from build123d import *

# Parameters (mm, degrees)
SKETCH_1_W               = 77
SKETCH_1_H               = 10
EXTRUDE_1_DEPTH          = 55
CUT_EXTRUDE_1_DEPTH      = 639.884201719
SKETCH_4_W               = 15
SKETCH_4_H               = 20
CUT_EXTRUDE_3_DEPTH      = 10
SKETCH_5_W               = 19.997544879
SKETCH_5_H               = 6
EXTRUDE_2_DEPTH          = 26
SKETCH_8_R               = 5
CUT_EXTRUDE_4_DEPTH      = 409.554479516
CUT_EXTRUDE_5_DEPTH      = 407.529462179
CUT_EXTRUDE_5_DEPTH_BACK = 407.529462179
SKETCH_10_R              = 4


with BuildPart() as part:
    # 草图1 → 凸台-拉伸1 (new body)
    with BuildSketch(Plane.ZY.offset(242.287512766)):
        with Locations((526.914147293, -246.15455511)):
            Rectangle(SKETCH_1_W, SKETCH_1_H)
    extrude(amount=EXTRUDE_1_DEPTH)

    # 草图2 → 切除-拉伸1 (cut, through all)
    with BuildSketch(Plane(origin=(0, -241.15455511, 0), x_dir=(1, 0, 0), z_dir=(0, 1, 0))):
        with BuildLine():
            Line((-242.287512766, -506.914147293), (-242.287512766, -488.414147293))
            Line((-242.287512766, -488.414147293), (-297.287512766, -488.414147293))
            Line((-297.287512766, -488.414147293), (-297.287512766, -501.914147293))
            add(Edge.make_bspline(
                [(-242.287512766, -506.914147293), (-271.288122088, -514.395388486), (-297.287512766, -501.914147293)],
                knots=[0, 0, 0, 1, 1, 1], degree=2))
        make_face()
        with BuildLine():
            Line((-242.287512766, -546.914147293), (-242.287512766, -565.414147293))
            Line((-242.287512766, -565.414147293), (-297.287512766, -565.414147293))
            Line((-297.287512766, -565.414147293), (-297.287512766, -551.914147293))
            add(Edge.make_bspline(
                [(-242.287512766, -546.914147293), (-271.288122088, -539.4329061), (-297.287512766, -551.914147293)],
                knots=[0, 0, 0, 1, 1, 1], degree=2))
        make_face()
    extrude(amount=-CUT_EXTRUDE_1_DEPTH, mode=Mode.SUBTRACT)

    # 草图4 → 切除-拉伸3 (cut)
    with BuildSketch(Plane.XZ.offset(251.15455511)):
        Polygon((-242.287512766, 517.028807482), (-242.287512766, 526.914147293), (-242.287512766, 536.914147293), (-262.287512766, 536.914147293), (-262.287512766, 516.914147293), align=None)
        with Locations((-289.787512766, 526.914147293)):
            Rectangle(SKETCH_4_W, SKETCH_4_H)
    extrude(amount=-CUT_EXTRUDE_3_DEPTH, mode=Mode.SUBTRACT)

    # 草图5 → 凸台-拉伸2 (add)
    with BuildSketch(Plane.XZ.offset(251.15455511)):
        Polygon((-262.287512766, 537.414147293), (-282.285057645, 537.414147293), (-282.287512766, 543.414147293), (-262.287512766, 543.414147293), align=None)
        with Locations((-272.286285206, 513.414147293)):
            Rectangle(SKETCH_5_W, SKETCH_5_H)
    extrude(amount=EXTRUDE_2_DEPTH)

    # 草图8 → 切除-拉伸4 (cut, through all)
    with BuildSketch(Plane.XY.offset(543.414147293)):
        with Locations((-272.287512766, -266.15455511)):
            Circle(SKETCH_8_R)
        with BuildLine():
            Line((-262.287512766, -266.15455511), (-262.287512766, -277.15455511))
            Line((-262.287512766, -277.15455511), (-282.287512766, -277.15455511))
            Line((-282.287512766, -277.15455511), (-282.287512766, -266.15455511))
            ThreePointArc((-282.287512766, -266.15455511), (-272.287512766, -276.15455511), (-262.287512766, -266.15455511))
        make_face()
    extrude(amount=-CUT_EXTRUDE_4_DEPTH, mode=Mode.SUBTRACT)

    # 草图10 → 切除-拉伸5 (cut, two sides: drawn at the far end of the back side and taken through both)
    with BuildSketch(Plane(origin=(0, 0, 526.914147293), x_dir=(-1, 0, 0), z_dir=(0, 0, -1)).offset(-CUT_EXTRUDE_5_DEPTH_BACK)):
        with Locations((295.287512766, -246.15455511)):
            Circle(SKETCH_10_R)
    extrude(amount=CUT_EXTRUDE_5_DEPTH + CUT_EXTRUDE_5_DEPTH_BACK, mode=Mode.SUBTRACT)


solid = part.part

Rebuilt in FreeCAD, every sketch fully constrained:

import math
import FreeCAD as App
import Part
import Sketcher

doc = App.newDocument("Part")
body = doc.addObject("PartDesign::Body", "Body")

# Sketch on YZ plane
sketch1 = body.newObject("Sketcher::SketchObject", "Sketch")
sketch1.AttachmentSupport = (doc.getObject("YZ_Plane"), [""])
sketch1.MapMode = "FlatFace"
sketch1.AttachmentOffset = App.Placement(App.Vector(0, 0, -242.287513), App.Rotation())
sketch1.addGeometry([
    Part.LineSegment(App.Vector(-241, 488, 0), App.Vector(-251, 488, 0)),
    Part.LineSegment(App.Vector(-251, 488, 0), App.Vector(-251, 565, 0)),
    Part.LineSegment(App.Vector(-251, 565, 0), App.Vector(-241, 565, 0)),
    Part.LineSegment(App.Vector(-241, 565, 0), App.Vector(-241, 488, 0)),
], False)
sketch1.addConstraint([
    Sketcher.Constraint("Coincident", 0, 2, 1, 1),
    Sketcher.Constraint("Coincident", 1, 2, 2, 1),
    Sketcher.Constraint("Coincident", 2, 2, 3, 1),
    Sketcher.Constraint("Coincident", 3, 2, 0, 1),
    Sketcher.Constraint("Horizontal", 0),
    Sketcher.Constraint("Vertical", 1),
    Sketcher.Constraint("Horizontal", 2),
    Sketcher.Constraint("Vertical", 3),
    Sketcher.Constraint("DistanceX", 0, 2, 0, 1, 10.0),
    Sketcher.Constraint("DistanceY", 1, 1, 1, 2, 77.0),
    Sketcher.Constraint("DistanceX", 0, 2, -1, 1, 251.154555),
    Sketcher.Constraint("DistanceY", -1, 1, 0, 2, 488.414147),
])
pad1 = body.newObject("PartDesign::Pad", "Pad")
pad1.Profile = sketch1
pad1.Length = 55
pad1.Reversed = True

# Sketch on XZ plane
sketch2 = body.newObject("Sketcher::SketchObject", "Sketch001")
sketch2.AttachmentSupport = (doc.getObject("XZ_Plane"), [""])
sketch2.MapMode = "FlatFace"
sketch2.AttachmentOffset = App.Placement(App.Vector(0, 0, 241.154555), App.Rotation())
sketch2.addGeometry([
    Part.LineSegment(App.Vector(-242.287513, 506.914147, 0), App.Vector(-242.287513, 488.414147, 0)),  # 0
    Part.LineSegment(App.Vector(-242.287513, 488.414147, 0), App.Vector(-297.287513, 488.414147, 0)),  # 1
    Part.LineSegment(App.Vector(-297.287513, 488.414147, 0), App.Vector(-297.287513, 501.914147, 0)),  # 2
    Part.BSplineCurve([App.Vector(-242.287513, 506.914147, 0), App.Vector(-271.288122, 514.395388, 0), App.Vector(-297.287513, 501.914147, 0)], [3, 3], [0, 1], False, 2, [1, 1, 1], False),  # 3
    Part.LineSegment(App.Vector(-242.287513, 565.414147, 0), App.Vector(-242.287513, 546.914147, 0)),  # 4
    Part.BSplineCurve([App.Vector(-242.287513, 546.914147, 0), App.Vector(-271.288122, 539.432906, 0), App.Vector(-297.287513, 551.914147, 0)], [3, 3], [0, 1], False, 2, [1, 1, 1], False),  # 5
    Part.LineSegment(App.Vector(-297.287513, 551.914147, 0), App.Vector(-297.287513, 565.414147, 0)),  # 6
    Part.LineSegment(App.Vector(-297.287513, 565.414147, 0), App.Vector(-242.287513, 565.414147, 0)),  # 7
], False)
sketch2.addConstraint([
    Sketcher.Constraint("Block", 3),
    Sketcher.Constraint("Block", 5),
    Sketcher.Constraint("Coincident", 0, 2, 1, 1),
    Sketcher.Constraint("Coincident", 1, 2, 2, 1),
    Sketcher.Constraint("Coincident", 2, 2, 3, 2),
    Sketcher.Constraint("Coincident", 3, 1, 0, 1),
    Sketcher.Constraint("Coincident", 4, 2, 5, 1),
    Sketcher.Constraint("Coincident", 5, 2, 6, 1),
    Sketcher.Constraint("Coincident", 6, 2, 7, 1),
    Sketcher.Constraint("Coincident", 7, 2, 4, 1),
    Sketcher.Constraint("Vertical", 0),
    Sketcher.Constraint("Horizontal", 1),
    Sketcher.Constraint("Vertical", 2),
    Sketcher.Constraint("Vertical", 4),
    Sketcher.Constraint("Vertical", 6),
    Sketcher.Constraint("Horizontal", 7),
    Sketcher.Constraint("Equal", 0, 4),
    Sketcher.Constraint("DistanceY", 0, 2, 0, 1, 18.5),
])
pocket1 = body.newObject("PartDesign::Pocket", "Pocket")
pocket1.Profile = sketch2
pocket1.Type = "ThroughAll"
pocket1.Reversed = True

# Sketch on XZ plane
sketch3 = body.newObject("Sketcher::SketchObject", "Sketch002")
sketch3.AttachmentSupport = (doc.getObject("XZ_Plane"), [""])
sketch3.MapMode = "FlatFace"
sketch3.AttachmentOffset = App.Placement(App.Vector(0, 0, 251.154555), App.Rotation())
sketch3.addGeometry([
    Part.LineSegment(App.Vector(-242, 517, 0), App.Vector(-242, 537, 0)),  # 0
    Part.LineSegment(App.Vector(-242, 537, 0), App.Vector(-262, 537, 0)),  # 1
    Part.LineSegment(App.Vector(-262, 537, 0), App.Vector(-262, 517, 0)),  # 2
    Part.LineSegment(App.Vector(-262, 517, 0), App.Vector(-242, 517, 0)),  # 3
    Part.LineSegment(App.Vector(-297, 537, 0), App.Vector(-297, 517, 0)),  # 4
    Part.LineSegment(App.Vector(-297, 517, 0), App.Vector(-282, 517, 0)),  # 5
    Part.LineSegment(App.Vector(-282, 517, 0), App.Vector(-282, 537, 0)),  # 6
    Part.LineSegment(App.Vector(-282, 537, 0), App.Vector(-297, 537, 0)),  # 7
], False)
sketch3.addConstraint([
    Sketcher.Constraint("Coincident", 0, 2, 1, 1),
    Sketcher.Constraint("Coincident", 1, 2, 2, 1),
    Sketcher.Constraint("Coincident", 2, 2, 3, 1),
    Sketcher.Constraint("Coincident", 3, 2, 0, 1),
    Sketcher.Constraint("Coincident", 4, 2, 5, 1),
    Sketcher.Constraint("Coincident", 5, 2, 6, 1),
    Sketcher.Constraint("Coincident", 6, 2, 7, 1),
    Sketcher.Constraint("Coincident", 7, 2, 4, 1),
    Sketcher.Constraint("Vertical", 0),
    Sketcher.Constraint("Horizontal", 1),
    Sketcher.Constraint("Vertical", 2),
    Sketcher.Constraint("Vertical", 4),
    Sketcher.Constraint("Horizontal", 5),
    Sketcher.Constraint("Vertical", 6),
    Sketcher.Constraint("Horizontal", 7),
    Sketcher.Constraint("Horizontal", 2, 2, 4, 2),
    Sketcher.Constraint("Horizontal", 1, 2, 6, 2),
    Sketcher.Constraint("Equal", 1, 2),
    Sketcher.Constraint("DistanceX", 1, 2, 1, 1, 20.0),
    Sketcher.Constraint("DistanceX", 5, 1, 5, 2, 15.0),
    Sketcher.Constraint("DistanceX", 4, 2, 2, 2, 35.0),
    Sketcher.Constraint("DistanceY", 0, 1, 0, 2, 19.88534),
    Sketcher.Constraint("DistanceX", 0, 2, -1, 1, 242.287513),
    Sketcher.Constraint("DistanceY", -1, 1, 0, 2, 536.914147),
])
pocket2 = body.newObject("PartDesign::Pocket", "Pocket001")
pocket2.Profile = sketch3
pocket2.Length = 10

# Sketch on XZ plane
sketch4 = body.newObject("Sketcher::SketchObject", "Sketch003")
sketch4.AttachmentSupport = (doc.getObject("XZ_Plane"), [""])
sketch4.MapMode = "FlatFace"
sketch4.AttachmentOffset = App.Placement(App.Vector(0, 0, 251.154555), App.Rotation())
sketch4.addGeometry([
    Part.LineSegment(App.Vector(-282, 537, 0), App.Vector(-262, 537, 0)),  # 0
    Part.LineSegment(App.Vector(-262, 537, 0), App.Vector(-262, 543, 0)),  # 1
    Part.LineSegment(App.Vector(-262, 543, 0), App.Vector(-282, 543, 0)),  # 2
    Part.LineSegment(App.Vector(-282, 543, 0), App.Vector(-282, 537, 0)),  # 3
    Part.LineSegment(App.Vector(-282, 516, 0), App.Vector(-282, 510, 0)),  # 4
    Part.LineSegment(App.Vector(-282, 510, 0), App.Vector(-262, 510, 0)),  # 5
    Part.LineSegment(App.Vector(-262, 510, 0), App.Vector(-262, 516, 0)),  # 6
    Part.LineSegment(App.Vector(-262, 516, 0), App.Vector(-282, 516, 0)),  # 7
], False)
sketch4.addConstraint([
    Sketcher.Constraint("Coincident", 0, 2, 1, 1),
    Sketcher.Constraint("Coincident", 1, 2, 2, 1),
    Sketcher.Constraint("Coincident", 2, 2, 3, 1),
    Sketcher.Constraint("Coincident", 3, 2, 0, 1),
    Sketcher.Constraint("Coincident", 4, 2, 5, 1),
    Sketcher.Constraint("Coincident", 5, 2, 6, 1),
    Sketcher.Constraint("Coincident", 6, 2, 7, 1),
    Sketcher.Constraint("Coincident", 7, 2, 4, 1),
    Sketcher.Constraint("Horizontal", 0),
    Sketcher.Constraint("Vertical", 1),
    Sketcher.Constraint("Horizontal", 2),
    Sketcher.Constraint("Vertical", 4),
    Sketcher.Constraint("Horizontal", 5),
    Sketcher.Constraint("Vertical", 6),
    Sketcher.Constraint("Horizontal", 7),
    Sketcher.Constraint("Vertical", 3, 2, 4, 2),
    Sketcher.Constraint("Vertical", 1, 2, 5, 2),
    Sketcher.Constraint("Equal", 1, 4),
    Sketcher.Constraint("DistanceX", 2, 2, 2, 1, 20.0),
    Sketcher.Constraint("DistanceY", 1, 1, 1, 2, 6.0),
    Sketcher.Constraint("DistanceY", 4, 2, 3, 2, 27.0),
    Sketcher.Constraint("DistanceX", 0, 1, 0, 2, 19.997545),
    Sketcher.Constraint("DistanceX", 0, 2, -1, 1, 262.287513),
    Sketcher.Constraint("DistanceY", -1, 1, 0, 2, 537.414147),
])
pad2 = body.newObject("PartDesign::Pad", "Pad001")
pad2.Profile = sketch4
pad2.Length = 26

# Sketch on XY plane
sketch5 = body.newObject("Sketcher::SketchObject", "Sketch004")
sketch5.AttachmentSupport = (doc.getObject("XY_Plane"), [""])
sketch5.MapMode = "FlatFace"
sketch5.AttachmentOffset = App.Placement(App.Vector(0, 0, 543.414147), App.Rotation())
sketch5.addGeometry([
    Part.Circle(App.Vector(-272, -266, 0), App.Vector(0, 0, 1), 5),  # 0
    Part.LineSegment(App.Vector(-262, -277, 0), App.Vector(-262, -266, 0)),  # 1
    Part.ArcOfCircle(Part.Circle(App.Vector(-272, -266, 0), App.Vector(0, 0, 1), 10), math.radians(180), math.radians(360)),  # 2
    Part.LineSegment(App.Vector(-282, -266, 0), App.Vector(-282, -277, 0)),  # 3
    Part.LineSegment(App.Vector(-282, -277, 0), App.Vector(-262, -277, 0)),  # 4
], False)
sketch5.addConstraint([
    Sketcher.Constraint("Tangent", 1, 2, 2, 2),
    Sketcher.Constraint("Tangent", 2, 1, 3, 1),
    Sketcher.Constraint("Coincident", 3, 2, 4, 1),
    Sketcher.Constraint("Coincident", 4, 2, 1, 1),
    Sketcher.Constraint("Vertical", 1),
    Sketcher.Constraint("Vertical", 3),
    Sketcher.Constraint("Horizontal", 4),
    Sketcher.Constraint("Coincident", 2, 3, 0, 3),
    Sketcher.Constraint("Diameter", 0, 10.0),
    Sketcher.Constraint("Radius", 2, 10.0),
    Sketcher.Constraint("DistanceY", 1, 1, 1, 2, 11.0),
    Sketcher.Constraint("DistanceX", 0, 3, -1, 1, 272.287513),
    Sketcher.Constraint("DistanceY", 0, 3, -1, 1, 266.154555),
])
pocket3 = body.newObject("PartDesign::Pocket", "Pocket002")
pocket3.Profile = sketch5
pocket3.Type = "ThroughAll"

# Sketch on XY plane
sketch6 = body.newObject("Sketcher::SketchObject", "Sketch005")
sketch6.AttachmentSupport = (doc.getObject("XY_Plane"), [""])
sketch6.MapMode = "FlatFace"
sketch6.AttachmentOffset = App.Placement(App.Vector(0, 0, 526.914147), App.Rotation())
sketch6.addGeometry(Part.Circle(App.Vector(-295.3, -246.2, 0), App.Vector(0, 0, 1), 4), False)
sketch6.addConstraint([
    Sketcher.Constraint("Diameter", 0, 8.0),
    Sketcher.Constraint("DistanceX", 0, 3, -1, 1, 295.287513),
    Sketcher.Constraint("DistanceY", 0, 3, -1, 1, 246.154555),
])
pocket4 = body.newObject("PartDesign::Pocket", "Pocket003")
pocket4.Profile = sketch6
pocket4.Type = "ThroughAll"
pocket4.Midplane = True

doc.recompute()
